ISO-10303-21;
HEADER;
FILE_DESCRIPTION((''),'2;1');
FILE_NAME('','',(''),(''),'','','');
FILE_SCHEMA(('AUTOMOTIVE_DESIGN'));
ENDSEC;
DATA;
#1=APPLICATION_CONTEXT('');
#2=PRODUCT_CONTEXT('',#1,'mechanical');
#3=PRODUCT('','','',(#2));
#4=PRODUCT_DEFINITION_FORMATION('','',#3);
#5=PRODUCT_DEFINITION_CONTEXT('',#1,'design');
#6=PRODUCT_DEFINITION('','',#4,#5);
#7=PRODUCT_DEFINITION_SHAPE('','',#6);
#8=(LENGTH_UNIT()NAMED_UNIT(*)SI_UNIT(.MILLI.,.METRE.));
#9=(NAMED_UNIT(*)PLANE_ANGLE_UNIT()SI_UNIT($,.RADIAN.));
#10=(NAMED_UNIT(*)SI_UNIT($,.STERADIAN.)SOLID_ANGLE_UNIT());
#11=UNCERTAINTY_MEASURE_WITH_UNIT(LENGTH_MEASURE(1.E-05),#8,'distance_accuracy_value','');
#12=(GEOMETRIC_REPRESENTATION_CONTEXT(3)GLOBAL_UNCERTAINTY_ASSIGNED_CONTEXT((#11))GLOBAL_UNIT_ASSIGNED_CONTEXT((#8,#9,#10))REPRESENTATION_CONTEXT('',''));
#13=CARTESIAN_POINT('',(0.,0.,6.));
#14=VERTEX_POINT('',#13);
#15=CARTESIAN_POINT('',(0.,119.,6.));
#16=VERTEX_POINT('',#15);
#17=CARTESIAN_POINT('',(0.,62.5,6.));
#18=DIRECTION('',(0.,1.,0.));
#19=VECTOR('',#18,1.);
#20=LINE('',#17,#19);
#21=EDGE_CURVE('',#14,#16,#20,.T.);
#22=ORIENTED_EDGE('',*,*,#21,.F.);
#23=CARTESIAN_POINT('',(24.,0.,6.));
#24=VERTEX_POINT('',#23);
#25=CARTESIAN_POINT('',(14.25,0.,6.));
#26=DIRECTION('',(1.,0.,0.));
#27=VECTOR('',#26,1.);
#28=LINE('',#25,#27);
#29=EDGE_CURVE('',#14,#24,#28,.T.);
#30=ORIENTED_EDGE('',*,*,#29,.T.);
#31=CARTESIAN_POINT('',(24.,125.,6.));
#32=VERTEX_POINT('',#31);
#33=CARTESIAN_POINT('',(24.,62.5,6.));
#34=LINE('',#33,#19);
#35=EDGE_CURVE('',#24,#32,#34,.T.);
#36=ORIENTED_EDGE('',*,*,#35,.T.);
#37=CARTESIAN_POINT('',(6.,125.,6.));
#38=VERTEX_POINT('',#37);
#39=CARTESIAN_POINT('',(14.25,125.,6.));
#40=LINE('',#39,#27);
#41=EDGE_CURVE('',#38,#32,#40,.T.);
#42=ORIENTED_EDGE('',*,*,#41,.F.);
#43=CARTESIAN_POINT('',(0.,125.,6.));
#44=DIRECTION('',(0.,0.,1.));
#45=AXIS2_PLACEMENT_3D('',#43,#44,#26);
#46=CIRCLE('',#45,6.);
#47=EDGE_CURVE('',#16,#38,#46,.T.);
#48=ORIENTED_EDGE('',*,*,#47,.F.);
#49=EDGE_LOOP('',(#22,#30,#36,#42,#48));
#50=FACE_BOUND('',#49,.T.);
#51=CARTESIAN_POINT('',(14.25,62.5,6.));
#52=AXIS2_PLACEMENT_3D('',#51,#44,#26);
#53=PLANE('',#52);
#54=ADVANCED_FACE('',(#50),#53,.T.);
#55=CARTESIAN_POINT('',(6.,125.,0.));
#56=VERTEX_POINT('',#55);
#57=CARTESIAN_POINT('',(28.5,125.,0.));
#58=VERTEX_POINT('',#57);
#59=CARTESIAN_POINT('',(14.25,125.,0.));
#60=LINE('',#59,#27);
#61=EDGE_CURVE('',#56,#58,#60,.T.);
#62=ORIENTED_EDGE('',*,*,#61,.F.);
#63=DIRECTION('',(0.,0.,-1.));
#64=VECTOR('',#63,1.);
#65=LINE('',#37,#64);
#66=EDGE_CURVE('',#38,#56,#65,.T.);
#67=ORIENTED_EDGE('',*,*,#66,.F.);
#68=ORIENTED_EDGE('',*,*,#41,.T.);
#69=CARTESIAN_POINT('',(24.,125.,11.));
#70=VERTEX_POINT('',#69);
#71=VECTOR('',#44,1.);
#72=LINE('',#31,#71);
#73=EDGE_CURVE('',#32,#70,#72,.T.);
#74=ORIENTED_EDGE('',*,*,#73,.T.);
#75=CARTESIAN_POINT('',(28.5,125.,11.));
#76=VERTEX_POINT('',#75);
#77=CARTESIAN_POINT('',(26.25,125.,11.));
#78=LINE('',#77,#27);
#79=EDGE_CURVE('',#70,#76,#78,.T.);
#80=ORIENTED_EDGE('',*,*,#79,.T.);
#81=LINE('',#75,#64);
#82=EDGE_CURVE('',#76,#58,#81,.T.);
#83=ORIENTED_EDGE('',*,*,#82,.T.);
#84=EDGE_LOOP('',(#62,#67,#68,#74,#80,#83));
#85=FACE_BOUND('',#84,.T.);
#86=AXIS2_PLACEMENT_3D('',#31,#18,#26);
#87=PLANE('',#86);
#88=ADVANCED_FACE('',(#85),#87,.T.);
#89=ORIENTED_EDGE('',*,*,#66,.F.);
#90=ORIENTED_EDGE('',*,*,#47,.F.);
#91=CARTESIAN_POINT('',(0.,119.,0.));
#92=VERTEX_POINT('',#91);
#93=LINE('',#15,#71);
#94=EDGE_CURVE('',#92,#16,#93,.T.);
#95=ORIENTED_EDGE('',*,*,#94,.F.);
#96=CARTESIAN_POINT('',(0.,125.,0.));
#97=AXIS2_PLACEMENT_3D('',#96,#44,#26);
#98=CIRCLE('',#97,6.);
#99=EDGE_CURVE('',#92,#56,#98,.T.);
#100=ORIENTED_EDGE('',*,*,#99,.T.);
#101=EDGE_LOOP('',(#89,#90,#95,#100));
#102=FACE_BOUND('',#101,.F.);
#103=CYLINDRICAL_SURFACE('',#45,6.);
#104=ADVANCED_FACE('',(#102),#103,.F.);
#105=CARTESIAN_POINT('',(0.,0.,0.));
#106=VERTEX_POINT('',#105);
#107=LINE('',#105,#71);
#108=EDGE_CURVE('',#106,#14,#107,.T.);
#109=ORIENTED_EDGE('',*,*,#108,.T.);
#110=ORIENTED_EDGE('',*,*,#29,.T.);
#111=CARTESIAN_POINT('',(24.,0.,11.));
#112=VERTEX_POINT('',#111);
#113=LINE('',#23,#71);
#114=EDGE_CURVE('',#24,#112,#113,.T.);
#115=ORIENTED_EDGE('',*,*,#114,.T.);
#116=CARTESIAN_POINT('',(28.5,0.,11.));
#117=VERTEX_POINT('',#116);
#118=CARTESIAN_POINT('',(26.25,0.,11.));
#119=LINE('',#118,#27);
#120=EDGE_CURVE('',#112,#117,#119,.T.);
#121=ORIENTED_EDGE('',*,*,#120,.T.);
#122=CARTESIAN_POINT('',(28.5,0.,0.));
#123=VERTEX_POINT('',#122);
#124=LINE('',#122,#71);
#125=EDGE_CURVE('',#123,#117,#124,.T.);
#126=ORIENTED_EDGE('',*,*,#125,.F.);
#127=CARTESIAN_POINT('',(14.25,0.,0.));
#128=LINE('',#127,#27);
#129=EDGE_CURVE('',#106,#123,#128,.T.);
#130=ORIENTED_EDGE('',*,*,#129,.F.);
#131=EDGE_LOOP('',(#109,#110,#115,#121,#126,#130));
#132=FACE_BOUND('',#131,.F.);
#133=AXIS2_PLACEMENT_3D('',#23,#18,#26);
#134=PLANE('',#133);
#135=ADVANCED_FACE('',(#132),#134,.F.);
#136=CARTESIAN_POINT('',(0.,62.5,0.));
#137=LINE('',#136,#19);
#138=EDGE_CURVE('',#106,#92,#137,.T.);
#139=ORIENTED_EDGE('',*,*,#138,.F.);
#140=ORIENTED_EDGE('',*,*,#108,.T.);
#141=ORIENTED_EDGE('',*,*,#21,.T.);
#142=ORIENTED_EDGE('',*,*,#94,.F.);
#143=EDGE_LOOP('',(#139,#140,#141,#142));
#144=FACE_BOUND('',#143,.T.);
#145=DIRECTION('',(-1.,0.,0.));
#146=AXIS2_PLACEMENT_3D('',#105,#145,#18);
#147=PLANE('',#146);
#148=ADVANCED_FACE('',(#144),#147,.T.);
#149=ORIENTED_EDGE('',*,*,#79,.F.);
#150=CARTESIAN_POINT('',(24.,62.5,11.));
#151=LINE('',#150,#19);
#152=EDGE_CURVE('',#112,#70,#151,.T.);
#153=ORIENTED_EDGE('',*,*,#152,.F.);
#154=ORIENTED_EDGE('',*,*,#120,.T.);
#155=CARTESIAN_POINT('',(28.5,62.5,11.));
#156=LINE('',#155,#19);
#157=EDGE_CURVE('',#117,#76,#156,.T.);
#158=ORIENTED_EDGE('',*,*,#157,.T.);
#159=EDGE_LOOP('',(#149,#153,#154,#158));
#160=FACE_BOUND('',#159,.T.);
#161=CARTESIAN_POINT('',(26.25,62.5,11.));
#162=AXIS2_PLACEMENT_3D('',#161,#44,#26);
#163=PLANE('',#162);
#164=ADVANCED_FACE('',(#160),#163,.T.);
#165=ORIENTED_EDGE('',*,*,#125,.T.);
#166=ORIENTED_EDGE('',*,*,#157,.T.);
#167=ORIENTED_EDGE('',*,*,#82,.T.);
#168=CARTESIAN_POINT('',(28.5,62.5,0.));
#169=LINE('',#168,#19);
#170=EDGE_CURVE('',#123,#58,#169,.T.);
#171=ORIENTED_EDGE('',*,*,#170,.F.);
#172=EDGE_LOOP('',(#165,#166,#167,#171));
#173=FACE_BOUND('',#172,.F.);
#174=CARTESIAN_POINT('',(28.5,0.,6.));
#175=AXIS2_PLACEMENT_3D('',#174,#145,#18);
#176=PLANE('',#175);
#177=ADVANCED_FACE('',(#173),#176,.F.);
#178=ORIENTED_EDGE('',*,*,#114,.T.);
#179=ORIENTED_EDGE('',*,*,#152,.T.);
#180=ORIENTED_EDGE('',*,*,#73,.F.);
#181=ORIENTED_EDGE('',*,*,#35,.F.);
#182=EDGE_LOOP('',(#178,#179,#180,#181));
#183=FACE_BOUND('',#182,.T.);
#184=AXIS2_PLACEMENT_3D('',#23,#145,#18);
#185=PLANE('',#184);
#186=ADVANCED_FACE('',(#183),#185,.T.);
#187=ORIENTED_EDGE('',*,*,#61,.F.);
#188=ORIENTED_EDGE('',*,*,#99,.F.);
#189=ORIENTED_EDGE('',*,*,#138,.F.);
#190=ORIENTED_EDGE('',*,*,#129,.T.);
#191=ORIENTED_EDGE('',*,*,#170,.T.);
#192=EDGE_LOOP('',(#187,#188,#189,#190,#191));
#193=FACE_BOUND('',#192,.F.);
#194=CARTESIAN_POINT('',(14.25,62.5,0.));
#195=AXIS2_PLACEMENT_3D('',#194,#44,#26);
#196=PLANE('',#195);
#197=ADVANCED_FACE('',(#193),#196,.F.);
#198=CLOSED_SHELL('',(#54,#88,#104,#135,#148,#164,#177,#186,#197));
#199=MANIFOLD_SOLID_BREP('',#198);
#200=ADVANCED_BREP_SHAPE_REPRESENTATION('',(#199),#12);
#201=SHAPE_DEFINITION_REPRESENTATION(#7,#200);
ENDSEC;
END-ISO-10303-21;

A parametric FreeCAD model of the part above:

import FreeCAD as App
import Part
import Sketcher

V = App.Vector
Q = App.Units.Quantity

doc = App.newDocument("Part")
body = doc.addObject("PartDesign::Body", "Body")

sketch1 = body.newObject("Sketcher::SketchObject", "Sketch")
sketch1.AttachmentSupport = (doc.getObject("XY_Plane"), [""])
sketch1.MapMode = "FlatFace"
sketch1.addGeometry(Part.LineSegment(V(0, 125, 0), V(0, 0, 0)), False)
sketch1.addGeometry(Part.LineSegment(V(0, 0, 0), V(28, 0, 0)), False)
sketch1.addGeometry(Part.LineSegment(V(28, 0, 0), V(28, 125, 0)), False)
sketch1.addGeometry(Part.LineSegment(V(28, 125, 0), V(0, 125, 0)), False)
sketch1.addConstraint(Sketcher.Constraint("Coincident", 0, 2, 1, 1))
sketch1.addConstraint(Sketcher.Constraint("Coincident", 1, 2, 2, 1))
sketch1.addConstraint(Sketcher.Constraint("Coincident", 2, 2, 3, 1))
sketch1.addConstraint(Sketcher.Constraint("Coincident", 3, 2, 0, 1))
sketch1.addConstraint(Sketcher.Constraint("Vertical", 0))
sketch1.addConstraint(Sketcher.Constraint("Horizontal", 1))
sketch1.addConstraint(Sketcher.Constraint("Vertical", 2))
sketch1.addConstraint(Sketcher.Constraint("Horizontal", 3))
sketch1.addConstraint(Sketcher.Constraint("Coincident", 0, 2, -1, 1))
sketch1.addConstraint(Sketcher.Constraint("DistanceY", 0, 2, 0, 1, Q("125 mm")))
sketch1.addConstraint(Sketcher.Constraint("DistanceX", 1, 1, 1, 2, Q("28.5 mm")))
pad1 = body.newObject("PartDesign::Pad", "Pad")
pad1.Profile = sketch1
pad1.Length = 6

sketch2 = body.newObject("Sketcher::SketchObject", "Sketch001")
sketch2.AttachmentSupport = (doc.getObject("XY_Plane"), [""])
sketch2.MapMode = "FlatFace"
sketch2.AttachmentOffset = App.Placement(V(0, 0, 6), App.Rotation())
sketch2.addGeometry(Part.LineSegment(V(24, 125, 0), V(24, 0, 0)), False)
sketch2.addGeometry(Part.LineSegment(V(24, 0, 0), V(28.5, 0, 0)), False)
sketch2.addGeometry(Part.LineSegment(V(28.5, 0, 0), V(28.5, 125, 0)), False)
sketch2.addGeometry(Part.LineSegment(V(28.5, 125, 0), V(24, 125, 0)), False)
sketch2.addConstraint(Sketcher.Constraint("Coincident", 0, 2, 1, 1))
sketch2.addConstraint(Sketcher.Constraint("Coincident", 1, 2, 2, 1))
sketch2.addConstraint(Sketcher.Constraint("Coincident", 2, 2, 3, 1))
sketch2.addConstraint(Sketcher.Constraint("Coincident", 3, 2, 0, 1))
sketch2.addConstraint(Sketcher.Constraint("Vertical", 0))
sketch2.addConstraint(Sketcher.Constraint("Horizontal", 1))
sketch2.addConstraint(Sketcher.Constraint("Vertical", 2))
sketch2.addConstraint(Sketcher.Constraint("Horizontal", 3))
sketch2.addConstraint(Sketcher.Constraint("PointOnObject", 0, 2, -1))
sketch2.addConstraint(Sketcher.Constraint("DistanceY", 0, 2, 0, 1, Q("125 mm")))
sketch2.addConstraint(Sketcher.Constraint("DistanceX", 1, 1, 1, 2, Q("4.5 mm")))
sketch2.addConstraint(Sketcher.Constraint("DistanceX", -1, 1, 0, 2, Q("24 mm")))
pad2 = body.newObject("PartDesign::Pad", "Pad001")
pad2.Profile = sketch2
pad2.Length = 5

sketch3 = body.newObject("Sketcher::SketchObject", "Sketch002")
sketch3.AttachmentSupport = (doc.getObject("XY_Plane"), [""])
sketch3.MapMode = "FlatFace"
sketch3.AttachmentOffset = App.Placement(V(0, 0, 6), App.Rotation())
sketch3.addGeometry(Part.Circle(V(0, 125, 0), V(0, 0, 1), 6), False)
sketch3.addConstraint(Sketcher.Constraint("PointOnObject", 0, 3, -2))
sketch3.addConstraint(Sketcher.Constraint("Diameter", 0, Q("12 mm")))
sketch3.addConstraint(Sketcher.Constraint("DistanceY", -1, 1, 0, 3, Q("125 mm")))
pocket1 = body.newObject("PartDesign::Pocket", "Pocket")
pocket1.Profile = sketch3
pocket1.Type = "ThroughAll"

doc.recompute()
